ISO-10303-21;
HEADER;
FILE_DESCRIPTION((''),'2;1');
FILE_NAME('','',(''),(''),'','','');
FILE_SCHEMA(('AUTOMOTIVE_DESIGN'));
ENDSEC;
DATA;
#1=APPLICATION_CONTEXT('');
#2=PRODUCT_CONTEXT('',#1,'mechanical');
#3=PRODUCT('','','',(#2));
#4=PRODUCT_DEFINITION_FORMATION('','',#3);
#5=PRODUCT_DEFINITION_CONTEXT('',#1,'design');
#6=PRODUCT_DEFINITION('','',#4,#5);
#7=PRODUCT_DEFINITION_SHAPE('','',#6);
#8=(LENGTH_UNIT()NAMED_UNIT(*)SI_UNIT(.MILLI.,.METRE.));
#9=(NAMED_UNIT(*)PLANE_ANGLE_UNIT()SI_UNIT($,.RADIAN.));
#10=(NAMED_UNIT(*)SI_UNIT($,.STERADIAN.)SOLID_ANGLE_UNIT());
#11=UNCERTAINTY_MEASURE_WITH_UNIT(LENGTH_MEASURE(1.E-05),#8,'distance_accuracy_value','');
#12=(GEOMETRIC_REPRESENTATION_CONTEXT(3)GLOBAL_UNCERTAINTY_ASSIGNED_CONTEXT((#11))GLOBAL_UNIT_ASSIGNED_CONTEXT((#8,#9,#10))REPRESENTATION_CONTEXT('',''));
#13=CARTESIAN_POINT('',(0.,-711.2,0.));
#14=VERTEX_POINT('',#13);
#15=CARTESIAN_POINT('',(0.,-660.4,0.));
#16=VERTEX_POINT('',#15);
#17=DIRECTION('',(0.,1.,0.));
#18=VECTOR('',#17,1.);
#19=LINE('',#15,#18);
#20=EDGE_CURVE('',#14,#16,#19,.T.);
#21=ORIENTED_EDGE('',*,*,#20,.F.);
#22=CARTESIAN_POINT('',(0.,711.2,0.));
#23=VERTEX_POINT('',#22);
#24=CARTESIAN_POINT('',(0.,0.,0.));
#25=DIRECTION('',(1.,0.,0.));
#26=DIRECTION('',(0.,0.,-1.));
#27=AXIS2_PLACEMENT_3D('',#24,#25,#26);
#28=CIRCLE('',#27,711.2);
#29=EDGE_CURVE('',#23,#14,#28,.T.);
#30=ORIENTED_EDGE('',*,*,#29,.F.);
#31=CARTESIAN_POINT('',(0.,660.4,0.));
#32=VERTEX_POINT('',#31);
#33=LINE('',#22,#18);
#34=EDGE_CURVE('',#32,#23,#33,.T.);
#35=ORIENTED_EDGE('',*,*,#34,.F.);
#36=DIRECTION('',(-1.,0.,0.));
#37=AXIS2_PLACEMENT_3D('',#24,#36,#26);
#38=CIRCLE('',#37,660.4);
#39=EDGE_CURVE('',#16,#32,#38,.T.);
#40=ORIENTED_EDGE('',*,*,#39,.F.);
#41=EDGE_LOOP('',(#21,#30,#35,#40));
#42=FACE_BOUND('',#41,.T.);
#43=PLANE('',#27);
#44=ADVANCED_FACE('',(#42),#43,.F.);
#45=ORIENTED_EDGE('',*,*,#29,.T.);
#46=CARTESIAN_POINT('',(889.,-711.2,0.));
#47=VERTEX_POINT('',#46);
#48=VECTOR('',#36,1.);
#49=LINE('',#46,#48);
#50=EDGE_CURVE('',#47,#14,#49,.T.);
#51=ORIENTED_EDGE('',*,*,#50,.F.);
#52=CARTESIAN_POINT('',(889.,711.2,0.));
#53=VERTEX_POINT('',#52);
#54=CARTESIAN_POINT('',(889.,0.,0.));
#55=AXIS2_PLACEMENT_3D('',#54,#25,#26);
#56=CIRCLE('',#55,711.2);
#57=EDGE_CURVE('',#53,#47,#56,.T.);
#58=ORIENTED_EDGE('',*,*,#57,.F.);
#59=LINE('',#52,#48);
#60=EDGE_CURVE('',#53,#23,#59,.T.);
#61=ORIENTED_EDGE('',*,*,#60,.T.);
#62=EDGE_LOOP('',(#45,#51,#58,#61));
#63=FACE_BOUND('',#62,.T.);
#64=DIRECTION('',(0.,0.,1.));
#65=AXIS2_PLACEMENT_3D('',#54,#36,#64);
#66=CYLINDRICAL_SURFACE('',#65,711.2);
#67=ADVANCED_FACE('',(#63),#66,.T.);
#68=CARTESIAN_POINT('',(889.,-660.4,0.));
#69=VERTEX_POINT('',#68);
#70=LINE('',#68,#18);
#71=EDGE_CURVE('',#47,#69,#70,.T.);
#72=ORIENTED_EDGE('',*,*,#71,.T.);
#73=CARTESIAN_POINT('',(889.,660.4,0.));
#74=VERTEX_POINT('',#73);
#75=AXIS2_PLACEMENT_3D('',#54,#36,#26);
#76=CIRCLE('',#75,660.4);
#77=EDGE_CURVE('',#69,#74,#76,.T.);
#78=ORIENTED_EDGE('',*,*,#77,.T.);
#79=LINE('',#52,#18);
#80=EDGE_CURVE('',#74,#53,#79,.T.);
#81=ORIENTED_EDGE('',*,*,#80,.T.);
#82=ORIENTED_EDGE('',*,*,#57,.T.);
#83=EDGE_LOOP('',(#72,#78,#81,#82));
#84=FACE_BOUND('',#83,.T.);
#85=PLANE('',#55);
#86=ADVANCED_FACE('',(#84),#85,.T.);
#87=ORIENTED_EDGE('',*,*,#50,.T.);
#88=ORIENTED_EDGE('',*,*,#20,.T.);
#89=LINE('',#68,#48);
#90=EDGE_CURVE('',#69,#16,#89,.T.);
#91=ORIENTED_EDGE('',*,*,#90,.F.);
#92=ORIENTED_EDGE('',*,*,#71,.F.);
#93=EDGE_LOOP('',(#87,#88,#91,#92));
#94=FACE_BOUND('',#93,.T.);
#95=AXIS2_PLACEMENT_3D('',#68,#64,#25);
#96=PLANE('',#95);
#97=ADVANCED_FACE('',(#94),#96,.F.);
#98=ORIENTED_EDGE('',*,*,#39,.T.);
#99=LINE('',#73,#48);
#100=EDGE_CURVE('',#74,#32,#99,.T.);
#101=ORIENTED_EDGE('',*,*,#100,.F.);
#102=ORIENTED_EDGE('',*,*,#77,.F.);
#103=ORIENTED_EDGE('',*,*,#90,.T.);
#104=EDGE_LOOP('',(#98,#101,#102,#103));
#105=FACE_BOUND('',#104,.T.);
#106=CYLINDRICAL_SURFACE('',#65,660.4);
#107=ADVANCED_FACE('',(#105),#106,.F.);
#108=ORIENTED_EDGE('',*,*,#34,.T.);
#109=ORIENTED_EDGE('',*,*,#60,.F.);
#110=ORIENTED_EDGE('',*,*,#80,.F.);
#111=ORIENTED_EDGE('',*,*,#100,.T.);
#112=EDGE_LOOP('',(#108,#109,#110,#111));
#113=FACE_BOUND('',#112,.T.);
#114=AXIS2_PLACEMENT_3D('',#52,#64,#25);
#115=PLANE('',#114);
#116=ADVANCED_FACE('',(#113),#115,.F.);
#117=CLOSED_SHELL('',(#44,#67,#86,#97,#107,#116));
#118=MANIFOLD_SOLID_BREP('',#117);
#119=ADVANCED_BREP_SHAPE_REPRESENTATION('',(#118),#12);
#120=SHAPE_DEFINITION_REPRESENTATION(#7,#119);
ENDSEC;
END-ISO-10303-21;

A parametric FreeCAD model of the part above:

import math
import FreeCAD as App
import Part
import Sketcher
Q = App.Units.Quantity

doc = App.newDocument("Part")
params = doc.addObject("Spreadsheet::Sheet", "Params")
for row, (alias, value) in enumerate([
    ("sketch1_radius", "28 in"),
    ("sketch1_radius2", "26 in"),
    ("pad1_length", "35 in"),
], start=1):
    params.set(f"A{row}", alias)
    params.set(f"B{row}", "=" + value)
    params.setAlias(f"B{row}", alias)

body = doc.addObject("PartDesign::Body", "Body")

# Sketch on YZ plane
sketch1 = body.newObject("Sketcher::SketchObject", "Sketch")
sketch1.AttachmentSupport = (doc.getObject("YZ_Plane"), [""])
sketch1.MapMode = "FlatFace"
sketch1.addGeometry([
    Part.LineSegment(App.Vector(660, 0, 0), App.Vector(711, 0, 0)),
    Part.ArcOfCircle(Part.Circle(App.Vector(0, 0, 0), App.Vector(0, 0, 1), 711), math.radians(0), math.radians(180)),
    Part.LineSegment(App.Vector(-711, 0, 0), App.Vector(-660, 0, 0)),
    Part.ArcOfCircle(Part.Circle(App.Vector(0, 0, 0), App.Vector(0, 0, 1), 660), math.radians(0), math.radians(180)),
], False)
sketch1.addConstraint([
    Sketcher.Constraint("Coincident", 0, 2, 1, 1),
    Sketcher.Constraint("Coincident", 1, 2, 2, 1),
    Sketcher.Constraint("Coincident", 2, 2, 3, 2),
    Sketcher.Constraint("Coincident", 3, 1, 0, 1),
    Sketcher.Constraint("Horizontal", 0),
    Sketcher.Constraint("Horizontal", 2),
    Sketcher.Constraint("Coincident", 1, 3, -1, 1),
    Sketcher.Constraint("Coincident", 3, 3, -1, 1),
    Sketcher.Constraint("PointOnObject", 0, 2, -1),
    Sketcher.Constraint("PointOnObject", 2, 2, -1),
    Sketcher.Constraint("Radius", 1, Q("28 in")),
    Sketcher.Constraint("Radius", 3, Q("26 in")),
])
sketch1.setExpression("Constraints[10]", "Params.sketch1_radius")
sketch1.setExpression("Constraints[11]", "Params.sketch1_radius2")
pad1 = body.newObject("PartDesign::Pad", "Pad")
pad1.Profile = sketch1
pad1.setExpression("Length", "Params.pad1_length")

doc.recompute()
